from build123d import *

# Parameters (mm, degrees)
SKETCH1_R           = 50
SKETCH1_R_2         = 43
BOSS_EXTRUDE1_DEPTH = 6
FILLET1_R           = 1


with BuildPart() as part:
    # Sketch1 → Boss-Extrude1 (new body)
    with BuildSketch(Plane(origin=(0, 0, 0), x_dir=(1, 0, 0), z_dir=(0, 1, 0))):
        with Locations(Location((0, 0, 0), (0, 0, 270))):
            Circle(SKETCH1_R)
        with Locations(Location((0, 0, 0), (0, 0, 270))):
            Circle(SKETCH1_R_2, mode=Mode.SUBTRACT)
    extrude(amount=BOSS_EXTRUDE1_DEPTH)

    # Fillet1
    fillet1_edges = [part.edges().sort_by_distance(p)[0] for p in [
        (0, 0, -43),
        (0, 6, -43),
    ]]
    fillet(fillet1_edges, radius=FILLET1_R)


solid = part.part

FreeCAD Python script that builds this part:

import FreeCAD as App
import Part
import Sketcher
Q = App.Units.Quantity


def edges_at(feature, points):
    """Names of the edges that pass closest to the given points."""
    edges = feature.Shape.Edges
    near = lambda p: min(range(len(edges)), key=lambda i: edges[i].distToShape(Part.Vertex(*p))[0])
    return sorted({f"Edge{near(p) + 1}" for p in points})

doc = App.newDocument("Part")
body = doc.addObject("PartDesign::Body", "Body")

# Sketch on XZ plane
sketch1 = body.newObject("Sketcher::SketchObject", "Sketch")
sketch1.AttachmentSupport = (doc.getObject("XZ_Plane"), [""])
sketch1.MapMode = "FlatFace"
sketch1.addGeometry(Part.Circle(App.Vector(0, 0, 0), App.Vector(0, 0, 1), 50), False)
sketch1.addGeometry(Part.Circle(App.Vector(0, 0, 0), App.Vector(0, 0, 1), 43), False)
sketch1.addConstraint(Sketcher.Constraint("Coincident", 0, 3, -1, 1))
sketch1.addConstraint(Sketcher.Constraint("Coincident", 1, 3, -1, 1))
sketch1.addConstraint(Sketcher.Constraint("Diameter", 0, Q("100 mm")))
sketch1.addConstraint(Sketcher.Constraint("Diameter", 1, Q("86 mm")))
pad1 = body.newObject("PartDesign::Pad", "Pad")
pad1.Profile = sketch1
pad1.Length = 6
pad1.Reversed = True
doc.recompute()

fillet = body.newObject("PartDesign::Fillet", "Fillet")
fillet.Base = (pad1, edges_at(pad1, [(0, 0, -43), (0, 6, -43)]))
fillet.Radius = 1

doc.recompute()
